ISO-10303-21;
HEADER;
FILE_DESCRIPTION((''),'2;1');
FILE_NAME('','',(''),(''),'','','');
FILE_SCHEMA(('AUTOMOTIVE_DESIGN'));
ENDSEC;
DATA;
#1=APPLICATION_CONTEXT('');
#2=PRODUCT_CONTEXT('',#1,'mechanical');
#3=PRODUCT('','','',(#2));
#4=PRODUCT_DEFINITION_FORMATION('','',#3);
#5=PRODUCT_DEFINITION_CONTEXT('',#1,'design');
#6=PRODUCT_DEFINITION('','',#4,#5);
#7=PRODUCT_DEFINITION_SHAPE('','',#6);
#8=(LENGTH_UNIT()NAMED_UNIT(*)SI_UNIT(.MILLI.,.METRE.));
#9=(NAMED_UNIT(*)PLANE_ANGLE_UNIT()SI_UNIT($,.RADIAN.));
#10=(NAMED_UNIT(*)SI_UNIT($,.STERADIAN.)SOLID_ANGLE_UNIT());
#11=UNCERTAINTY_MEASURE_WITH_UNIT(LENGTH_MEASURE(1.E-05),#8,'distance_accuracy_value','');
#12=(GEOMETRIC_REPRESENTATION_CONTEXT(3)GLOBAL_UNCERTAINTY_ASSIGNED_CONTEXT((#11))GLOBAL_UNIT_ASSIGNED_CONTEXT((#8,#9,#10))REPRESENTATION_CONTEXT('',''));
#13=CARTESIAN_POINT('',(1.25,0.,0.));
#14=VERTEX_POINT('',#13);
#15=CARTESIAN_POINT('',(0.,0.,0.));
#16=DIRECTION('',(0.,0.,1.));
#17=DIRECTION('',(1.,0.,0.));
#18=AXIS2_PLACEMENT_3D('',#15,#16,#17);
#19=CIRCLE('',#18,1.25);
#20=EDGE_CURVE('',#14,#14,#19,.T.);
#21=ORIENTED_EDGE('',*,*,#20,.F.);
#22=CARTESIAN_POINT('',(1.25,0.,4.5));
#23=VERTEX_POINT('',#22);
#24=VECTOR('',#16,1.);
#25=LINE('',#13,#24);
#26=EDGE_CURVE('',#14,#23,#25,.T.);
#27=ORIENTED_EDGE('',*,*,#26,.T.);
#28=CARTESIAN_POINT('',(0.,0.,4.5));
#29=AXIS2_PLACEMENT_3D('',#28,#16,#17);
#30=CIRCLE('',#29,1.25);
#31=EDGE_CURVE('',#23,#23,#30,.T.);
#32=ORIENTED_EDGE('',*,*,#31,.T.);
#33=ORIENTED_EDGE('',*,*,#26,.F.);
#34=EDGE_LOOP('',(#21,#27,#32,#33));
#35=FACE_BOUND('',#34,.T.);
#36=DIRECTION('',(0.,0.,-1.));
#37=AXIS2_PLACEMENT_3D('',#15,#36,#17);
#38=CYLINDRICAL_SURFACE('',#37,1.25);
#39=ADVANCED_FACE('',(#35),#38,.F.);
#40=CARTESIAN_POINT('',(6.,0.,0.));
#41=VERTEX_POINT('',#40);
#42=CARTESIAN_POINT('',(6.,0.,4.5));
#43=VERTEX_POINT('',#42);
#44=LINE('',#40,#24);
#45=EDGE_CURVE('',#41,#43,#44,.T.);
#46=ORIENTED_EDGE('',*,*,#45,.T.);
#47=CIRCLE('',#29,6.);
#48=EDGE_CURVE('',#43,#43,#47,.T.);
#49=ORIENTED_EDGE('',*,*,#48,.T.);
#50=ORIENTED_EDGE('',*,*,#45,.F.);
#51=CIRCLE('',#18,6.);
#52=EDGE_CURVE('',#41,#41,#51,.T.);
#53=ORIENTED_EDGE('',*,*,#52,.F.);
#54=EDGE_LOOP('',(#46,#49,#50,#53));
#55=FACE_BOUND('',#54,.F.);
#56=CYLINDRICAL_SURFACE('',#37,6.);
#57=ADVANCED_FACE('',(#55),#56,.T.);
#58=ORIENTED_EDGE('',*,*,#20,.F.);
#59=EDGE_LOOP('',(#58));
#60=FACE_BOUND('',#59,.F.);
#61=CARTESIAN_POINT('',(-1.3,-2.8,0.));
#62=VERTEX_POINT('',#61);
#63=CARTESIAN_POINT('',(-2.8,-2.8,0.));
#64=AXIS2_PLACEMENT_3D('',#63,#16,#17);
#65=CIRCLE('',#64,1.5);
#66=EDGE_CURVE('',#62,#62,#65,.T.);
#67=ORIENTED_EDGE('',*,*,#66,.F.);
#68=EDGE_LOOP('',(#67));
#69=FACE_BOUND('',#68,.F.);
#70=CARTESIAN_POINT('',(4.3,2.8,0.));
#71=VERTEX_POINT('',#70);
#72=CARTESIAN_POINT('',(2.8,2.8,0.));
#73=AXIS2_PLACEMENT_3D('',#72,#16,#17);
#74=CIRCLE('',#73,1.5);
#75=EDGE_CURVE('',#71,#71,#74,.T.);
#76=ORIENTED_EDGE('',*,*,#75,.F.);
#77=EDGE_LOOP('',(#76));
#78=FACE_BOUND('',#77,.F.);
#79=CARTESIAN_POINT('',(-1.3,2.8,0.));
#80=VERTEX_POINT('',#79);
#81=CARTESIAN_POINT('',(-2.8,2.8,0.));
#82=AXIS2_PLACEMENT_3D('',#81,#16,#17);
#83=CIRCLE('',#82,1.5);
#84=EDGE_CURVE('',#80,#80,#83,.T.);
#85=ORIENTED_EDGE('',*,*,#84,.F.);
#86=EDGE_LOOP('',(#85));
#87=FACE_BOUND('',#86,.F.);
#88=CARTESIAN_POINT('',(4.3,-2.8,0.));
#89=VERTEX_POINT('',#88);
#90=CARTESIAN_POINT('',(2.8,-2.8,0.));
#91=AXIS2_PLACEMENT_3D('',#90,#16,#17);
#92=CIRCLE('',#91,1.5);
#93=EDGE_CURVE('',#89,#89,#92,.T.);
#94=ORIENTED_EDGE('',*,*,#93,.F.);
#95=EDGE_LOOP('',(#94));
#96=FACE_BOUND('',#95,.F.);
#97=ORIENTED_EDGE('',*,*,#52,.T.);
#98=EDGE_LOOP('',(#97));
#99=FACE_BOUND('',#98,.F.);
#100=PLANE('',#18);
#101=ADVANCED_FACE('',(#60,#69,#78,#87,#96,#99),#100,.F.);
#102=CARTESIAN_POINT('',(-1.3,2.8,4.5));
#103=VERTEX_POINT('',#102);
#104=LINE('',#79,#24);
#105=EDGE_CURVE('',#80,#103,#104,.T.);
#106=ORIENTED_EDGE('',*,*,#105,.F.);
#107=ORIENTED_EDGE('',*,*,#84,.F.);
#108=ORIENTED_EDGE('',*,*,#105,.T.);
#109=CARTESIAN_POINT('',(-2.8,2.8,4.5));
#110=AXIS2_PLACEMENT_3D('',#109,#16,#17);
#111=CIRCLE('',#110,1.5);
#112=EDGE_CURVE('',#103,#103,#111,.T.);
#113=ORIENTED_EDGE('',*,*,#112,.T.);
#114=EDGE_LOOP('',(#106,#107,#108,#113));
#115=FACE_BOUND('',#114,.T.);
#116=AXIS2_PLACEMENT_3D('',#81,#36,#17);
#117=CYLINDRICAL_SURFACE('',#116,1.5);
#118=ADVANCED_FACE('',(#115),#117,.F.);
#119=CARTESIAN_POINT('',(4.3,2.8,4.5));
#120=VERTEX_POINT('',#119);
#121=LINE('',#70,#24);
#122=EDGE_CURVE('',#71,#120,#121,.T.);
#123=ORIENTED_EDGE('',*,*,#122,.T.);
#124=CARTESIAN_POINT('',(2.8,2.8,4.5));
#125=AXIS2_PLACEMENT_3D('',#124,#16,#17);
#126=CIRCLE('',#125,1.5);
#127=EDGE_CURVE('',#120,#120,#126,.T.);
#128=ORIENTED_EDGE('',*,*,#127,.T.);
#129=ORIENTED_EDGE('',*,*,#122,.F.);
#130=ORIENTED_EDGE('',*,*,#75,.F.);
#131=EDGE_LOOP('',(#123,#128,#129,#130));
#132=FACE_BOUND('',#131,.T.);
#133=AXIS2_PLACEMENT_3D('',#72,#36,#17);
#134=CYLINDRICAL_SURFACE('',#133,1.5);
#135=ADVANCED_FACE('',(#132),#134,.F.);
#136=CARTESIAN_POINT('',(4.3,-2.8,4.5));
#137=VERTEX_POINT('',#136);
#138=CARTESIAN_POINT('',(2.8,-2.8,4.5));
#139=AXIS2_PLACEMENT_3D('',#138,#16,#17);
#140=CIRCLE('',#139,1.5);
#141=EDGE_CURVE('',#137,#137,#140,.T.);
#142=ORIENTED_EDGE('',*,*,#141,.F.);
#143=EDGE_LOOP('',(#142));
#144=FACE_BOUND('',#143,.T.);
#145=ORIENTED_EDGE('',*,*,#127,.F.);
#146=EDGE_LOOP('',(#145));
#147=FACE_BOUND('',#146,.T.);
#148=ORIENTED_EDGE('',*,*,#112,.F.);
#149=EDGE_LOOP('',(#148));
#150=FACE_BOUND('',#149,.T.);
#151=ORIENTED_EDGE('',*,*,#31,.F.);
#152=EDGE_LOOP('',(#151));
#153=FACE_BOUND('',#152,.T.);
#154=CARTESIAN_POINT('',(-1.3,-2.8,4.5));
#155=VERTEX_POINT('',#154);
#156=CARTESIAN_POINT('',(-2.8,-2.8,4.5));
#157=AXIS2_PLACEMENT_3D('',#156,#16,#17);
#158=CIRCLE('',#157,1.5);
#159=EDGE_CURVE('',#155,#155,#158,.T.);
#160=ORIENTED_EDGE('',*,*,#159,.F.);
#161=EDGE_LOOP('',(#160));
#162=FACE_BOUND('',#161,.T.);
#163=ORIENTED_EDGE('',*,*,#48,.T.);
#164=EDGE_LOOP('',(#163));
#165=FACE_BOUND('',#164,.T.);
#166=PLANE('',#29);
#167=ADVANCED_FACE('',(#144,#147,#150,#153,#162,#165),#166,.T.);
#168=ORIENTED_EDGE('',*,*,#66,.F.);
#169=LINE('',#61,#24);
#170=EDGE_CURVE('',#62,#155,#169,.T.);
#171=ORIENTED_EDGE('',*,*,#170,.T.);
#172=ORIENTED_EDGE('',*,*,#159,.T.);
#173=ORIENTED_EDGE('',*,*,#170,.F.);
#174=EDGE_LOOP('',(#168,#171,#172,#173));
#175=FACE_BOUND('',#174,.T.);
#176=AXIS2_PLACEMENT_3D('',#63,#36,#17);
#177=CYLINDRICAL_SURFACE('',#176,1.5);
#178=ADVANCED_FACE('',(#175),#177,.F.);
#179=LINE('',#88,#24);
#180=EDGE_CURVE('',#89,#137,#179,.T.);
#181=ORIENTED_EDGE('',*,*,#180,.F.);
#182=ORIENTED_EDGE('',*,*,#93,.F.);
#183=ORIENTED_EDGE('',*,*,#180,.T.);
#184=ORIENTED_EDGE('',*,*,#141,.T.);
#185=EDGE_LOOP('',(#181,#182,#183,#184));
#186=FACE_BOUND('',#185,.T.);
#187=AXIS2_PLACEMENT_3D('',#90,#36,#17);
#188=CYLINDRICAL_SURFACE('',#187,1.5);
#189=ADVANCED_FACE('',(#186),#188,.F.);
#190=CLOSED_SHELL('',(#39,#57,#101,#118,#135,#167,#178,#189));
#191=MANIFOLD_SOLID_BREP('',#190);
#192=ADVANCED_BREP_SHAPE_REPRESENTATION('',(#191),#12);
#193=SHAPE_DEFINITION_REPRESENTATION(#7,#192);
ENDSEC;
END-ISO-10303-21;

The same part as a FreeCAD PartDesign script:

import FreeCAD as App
import Part
import Sketcher
Q = App.Units.Quantity

doc = App.newDocument("Part")
body = doc.addObject("PartDesign::Body", "Body")

# Sketch on XY plane
sketch1 = body.newObject("Sketcher::SketchObject", "Sketch")
sketch1.AttachmentSupport = (doc.getObject("XY_Plane"), [""])
sketch1.MapMode = "FlatFace"
sketch1.addGeometry([
    Part.Circle(App.Vector(0, 0, 0), App.Vector(0, 0, 1), 6),  # 0
    Part.Circle(App.Vector(-2.8, -2.8, 0), App.Vector(0, 0, 1), 1.5),  # 1
    Part.Circle(App.Vector(2.8, -2.8, 0), App.Vector(0, 0, 1), 1.5),  # 2
    Part.Circle(App.Vector(-2.8, 2.8, 0), App.Vector(0, 0, 1), 1.5),  # 3
    Part.Circle(App.Vector(0, 0, 0), App.Vector(0, 0, 1), 1.2),  # 4
    Part.Circle(App.Vector(2.8, 2.8, 0), App.Vector(0, 0, 1), 1.5),  # 5
], False)
sketch1.addConstraint([
    Sketcher.Constraint("Coincident", 0, 3, -1, 1),
    Sketcher.Constraint("Coincident", 4, 3, -1, 1),
    Sketcher.Constraint("Equal", 1, 2),
    Sketcher.Constraint("Equal", 2, 3),
    Sketcher.Constraint("Equal", 3, 5),
    Sketcher.Constraint("Symmetric", 2, 3, 3, 3, -1, 1),
    Sketcher.Constraint("Symmetric", 1, 3, 5, 3, -1, 1),
    Sketcher.Constraint("Symmetric", 1, 3, 2, 3, -2),
    Sketcher.Constraint("Diameter", 0, Q("12 mm")),
    Sketcher.Constraint("Diameter", 1, Q("3 mm")),
    Sketcher.Constraint("Diameter", 4, Q("2.5 mm")),
    Sketcher.Constraint("DistanceX", 1, 3, 2, 3, Q("5.6 mm")),
    Sketcher.Constraint("DistanceY", 1, 3, 3, 3, Q("5.6 mm")),
])
pad1 = body.newObject("PartDesign::Pad", "Pad")
pad1.Profile = sketch1
pad1.Length = 4.5

doc.recompute()
